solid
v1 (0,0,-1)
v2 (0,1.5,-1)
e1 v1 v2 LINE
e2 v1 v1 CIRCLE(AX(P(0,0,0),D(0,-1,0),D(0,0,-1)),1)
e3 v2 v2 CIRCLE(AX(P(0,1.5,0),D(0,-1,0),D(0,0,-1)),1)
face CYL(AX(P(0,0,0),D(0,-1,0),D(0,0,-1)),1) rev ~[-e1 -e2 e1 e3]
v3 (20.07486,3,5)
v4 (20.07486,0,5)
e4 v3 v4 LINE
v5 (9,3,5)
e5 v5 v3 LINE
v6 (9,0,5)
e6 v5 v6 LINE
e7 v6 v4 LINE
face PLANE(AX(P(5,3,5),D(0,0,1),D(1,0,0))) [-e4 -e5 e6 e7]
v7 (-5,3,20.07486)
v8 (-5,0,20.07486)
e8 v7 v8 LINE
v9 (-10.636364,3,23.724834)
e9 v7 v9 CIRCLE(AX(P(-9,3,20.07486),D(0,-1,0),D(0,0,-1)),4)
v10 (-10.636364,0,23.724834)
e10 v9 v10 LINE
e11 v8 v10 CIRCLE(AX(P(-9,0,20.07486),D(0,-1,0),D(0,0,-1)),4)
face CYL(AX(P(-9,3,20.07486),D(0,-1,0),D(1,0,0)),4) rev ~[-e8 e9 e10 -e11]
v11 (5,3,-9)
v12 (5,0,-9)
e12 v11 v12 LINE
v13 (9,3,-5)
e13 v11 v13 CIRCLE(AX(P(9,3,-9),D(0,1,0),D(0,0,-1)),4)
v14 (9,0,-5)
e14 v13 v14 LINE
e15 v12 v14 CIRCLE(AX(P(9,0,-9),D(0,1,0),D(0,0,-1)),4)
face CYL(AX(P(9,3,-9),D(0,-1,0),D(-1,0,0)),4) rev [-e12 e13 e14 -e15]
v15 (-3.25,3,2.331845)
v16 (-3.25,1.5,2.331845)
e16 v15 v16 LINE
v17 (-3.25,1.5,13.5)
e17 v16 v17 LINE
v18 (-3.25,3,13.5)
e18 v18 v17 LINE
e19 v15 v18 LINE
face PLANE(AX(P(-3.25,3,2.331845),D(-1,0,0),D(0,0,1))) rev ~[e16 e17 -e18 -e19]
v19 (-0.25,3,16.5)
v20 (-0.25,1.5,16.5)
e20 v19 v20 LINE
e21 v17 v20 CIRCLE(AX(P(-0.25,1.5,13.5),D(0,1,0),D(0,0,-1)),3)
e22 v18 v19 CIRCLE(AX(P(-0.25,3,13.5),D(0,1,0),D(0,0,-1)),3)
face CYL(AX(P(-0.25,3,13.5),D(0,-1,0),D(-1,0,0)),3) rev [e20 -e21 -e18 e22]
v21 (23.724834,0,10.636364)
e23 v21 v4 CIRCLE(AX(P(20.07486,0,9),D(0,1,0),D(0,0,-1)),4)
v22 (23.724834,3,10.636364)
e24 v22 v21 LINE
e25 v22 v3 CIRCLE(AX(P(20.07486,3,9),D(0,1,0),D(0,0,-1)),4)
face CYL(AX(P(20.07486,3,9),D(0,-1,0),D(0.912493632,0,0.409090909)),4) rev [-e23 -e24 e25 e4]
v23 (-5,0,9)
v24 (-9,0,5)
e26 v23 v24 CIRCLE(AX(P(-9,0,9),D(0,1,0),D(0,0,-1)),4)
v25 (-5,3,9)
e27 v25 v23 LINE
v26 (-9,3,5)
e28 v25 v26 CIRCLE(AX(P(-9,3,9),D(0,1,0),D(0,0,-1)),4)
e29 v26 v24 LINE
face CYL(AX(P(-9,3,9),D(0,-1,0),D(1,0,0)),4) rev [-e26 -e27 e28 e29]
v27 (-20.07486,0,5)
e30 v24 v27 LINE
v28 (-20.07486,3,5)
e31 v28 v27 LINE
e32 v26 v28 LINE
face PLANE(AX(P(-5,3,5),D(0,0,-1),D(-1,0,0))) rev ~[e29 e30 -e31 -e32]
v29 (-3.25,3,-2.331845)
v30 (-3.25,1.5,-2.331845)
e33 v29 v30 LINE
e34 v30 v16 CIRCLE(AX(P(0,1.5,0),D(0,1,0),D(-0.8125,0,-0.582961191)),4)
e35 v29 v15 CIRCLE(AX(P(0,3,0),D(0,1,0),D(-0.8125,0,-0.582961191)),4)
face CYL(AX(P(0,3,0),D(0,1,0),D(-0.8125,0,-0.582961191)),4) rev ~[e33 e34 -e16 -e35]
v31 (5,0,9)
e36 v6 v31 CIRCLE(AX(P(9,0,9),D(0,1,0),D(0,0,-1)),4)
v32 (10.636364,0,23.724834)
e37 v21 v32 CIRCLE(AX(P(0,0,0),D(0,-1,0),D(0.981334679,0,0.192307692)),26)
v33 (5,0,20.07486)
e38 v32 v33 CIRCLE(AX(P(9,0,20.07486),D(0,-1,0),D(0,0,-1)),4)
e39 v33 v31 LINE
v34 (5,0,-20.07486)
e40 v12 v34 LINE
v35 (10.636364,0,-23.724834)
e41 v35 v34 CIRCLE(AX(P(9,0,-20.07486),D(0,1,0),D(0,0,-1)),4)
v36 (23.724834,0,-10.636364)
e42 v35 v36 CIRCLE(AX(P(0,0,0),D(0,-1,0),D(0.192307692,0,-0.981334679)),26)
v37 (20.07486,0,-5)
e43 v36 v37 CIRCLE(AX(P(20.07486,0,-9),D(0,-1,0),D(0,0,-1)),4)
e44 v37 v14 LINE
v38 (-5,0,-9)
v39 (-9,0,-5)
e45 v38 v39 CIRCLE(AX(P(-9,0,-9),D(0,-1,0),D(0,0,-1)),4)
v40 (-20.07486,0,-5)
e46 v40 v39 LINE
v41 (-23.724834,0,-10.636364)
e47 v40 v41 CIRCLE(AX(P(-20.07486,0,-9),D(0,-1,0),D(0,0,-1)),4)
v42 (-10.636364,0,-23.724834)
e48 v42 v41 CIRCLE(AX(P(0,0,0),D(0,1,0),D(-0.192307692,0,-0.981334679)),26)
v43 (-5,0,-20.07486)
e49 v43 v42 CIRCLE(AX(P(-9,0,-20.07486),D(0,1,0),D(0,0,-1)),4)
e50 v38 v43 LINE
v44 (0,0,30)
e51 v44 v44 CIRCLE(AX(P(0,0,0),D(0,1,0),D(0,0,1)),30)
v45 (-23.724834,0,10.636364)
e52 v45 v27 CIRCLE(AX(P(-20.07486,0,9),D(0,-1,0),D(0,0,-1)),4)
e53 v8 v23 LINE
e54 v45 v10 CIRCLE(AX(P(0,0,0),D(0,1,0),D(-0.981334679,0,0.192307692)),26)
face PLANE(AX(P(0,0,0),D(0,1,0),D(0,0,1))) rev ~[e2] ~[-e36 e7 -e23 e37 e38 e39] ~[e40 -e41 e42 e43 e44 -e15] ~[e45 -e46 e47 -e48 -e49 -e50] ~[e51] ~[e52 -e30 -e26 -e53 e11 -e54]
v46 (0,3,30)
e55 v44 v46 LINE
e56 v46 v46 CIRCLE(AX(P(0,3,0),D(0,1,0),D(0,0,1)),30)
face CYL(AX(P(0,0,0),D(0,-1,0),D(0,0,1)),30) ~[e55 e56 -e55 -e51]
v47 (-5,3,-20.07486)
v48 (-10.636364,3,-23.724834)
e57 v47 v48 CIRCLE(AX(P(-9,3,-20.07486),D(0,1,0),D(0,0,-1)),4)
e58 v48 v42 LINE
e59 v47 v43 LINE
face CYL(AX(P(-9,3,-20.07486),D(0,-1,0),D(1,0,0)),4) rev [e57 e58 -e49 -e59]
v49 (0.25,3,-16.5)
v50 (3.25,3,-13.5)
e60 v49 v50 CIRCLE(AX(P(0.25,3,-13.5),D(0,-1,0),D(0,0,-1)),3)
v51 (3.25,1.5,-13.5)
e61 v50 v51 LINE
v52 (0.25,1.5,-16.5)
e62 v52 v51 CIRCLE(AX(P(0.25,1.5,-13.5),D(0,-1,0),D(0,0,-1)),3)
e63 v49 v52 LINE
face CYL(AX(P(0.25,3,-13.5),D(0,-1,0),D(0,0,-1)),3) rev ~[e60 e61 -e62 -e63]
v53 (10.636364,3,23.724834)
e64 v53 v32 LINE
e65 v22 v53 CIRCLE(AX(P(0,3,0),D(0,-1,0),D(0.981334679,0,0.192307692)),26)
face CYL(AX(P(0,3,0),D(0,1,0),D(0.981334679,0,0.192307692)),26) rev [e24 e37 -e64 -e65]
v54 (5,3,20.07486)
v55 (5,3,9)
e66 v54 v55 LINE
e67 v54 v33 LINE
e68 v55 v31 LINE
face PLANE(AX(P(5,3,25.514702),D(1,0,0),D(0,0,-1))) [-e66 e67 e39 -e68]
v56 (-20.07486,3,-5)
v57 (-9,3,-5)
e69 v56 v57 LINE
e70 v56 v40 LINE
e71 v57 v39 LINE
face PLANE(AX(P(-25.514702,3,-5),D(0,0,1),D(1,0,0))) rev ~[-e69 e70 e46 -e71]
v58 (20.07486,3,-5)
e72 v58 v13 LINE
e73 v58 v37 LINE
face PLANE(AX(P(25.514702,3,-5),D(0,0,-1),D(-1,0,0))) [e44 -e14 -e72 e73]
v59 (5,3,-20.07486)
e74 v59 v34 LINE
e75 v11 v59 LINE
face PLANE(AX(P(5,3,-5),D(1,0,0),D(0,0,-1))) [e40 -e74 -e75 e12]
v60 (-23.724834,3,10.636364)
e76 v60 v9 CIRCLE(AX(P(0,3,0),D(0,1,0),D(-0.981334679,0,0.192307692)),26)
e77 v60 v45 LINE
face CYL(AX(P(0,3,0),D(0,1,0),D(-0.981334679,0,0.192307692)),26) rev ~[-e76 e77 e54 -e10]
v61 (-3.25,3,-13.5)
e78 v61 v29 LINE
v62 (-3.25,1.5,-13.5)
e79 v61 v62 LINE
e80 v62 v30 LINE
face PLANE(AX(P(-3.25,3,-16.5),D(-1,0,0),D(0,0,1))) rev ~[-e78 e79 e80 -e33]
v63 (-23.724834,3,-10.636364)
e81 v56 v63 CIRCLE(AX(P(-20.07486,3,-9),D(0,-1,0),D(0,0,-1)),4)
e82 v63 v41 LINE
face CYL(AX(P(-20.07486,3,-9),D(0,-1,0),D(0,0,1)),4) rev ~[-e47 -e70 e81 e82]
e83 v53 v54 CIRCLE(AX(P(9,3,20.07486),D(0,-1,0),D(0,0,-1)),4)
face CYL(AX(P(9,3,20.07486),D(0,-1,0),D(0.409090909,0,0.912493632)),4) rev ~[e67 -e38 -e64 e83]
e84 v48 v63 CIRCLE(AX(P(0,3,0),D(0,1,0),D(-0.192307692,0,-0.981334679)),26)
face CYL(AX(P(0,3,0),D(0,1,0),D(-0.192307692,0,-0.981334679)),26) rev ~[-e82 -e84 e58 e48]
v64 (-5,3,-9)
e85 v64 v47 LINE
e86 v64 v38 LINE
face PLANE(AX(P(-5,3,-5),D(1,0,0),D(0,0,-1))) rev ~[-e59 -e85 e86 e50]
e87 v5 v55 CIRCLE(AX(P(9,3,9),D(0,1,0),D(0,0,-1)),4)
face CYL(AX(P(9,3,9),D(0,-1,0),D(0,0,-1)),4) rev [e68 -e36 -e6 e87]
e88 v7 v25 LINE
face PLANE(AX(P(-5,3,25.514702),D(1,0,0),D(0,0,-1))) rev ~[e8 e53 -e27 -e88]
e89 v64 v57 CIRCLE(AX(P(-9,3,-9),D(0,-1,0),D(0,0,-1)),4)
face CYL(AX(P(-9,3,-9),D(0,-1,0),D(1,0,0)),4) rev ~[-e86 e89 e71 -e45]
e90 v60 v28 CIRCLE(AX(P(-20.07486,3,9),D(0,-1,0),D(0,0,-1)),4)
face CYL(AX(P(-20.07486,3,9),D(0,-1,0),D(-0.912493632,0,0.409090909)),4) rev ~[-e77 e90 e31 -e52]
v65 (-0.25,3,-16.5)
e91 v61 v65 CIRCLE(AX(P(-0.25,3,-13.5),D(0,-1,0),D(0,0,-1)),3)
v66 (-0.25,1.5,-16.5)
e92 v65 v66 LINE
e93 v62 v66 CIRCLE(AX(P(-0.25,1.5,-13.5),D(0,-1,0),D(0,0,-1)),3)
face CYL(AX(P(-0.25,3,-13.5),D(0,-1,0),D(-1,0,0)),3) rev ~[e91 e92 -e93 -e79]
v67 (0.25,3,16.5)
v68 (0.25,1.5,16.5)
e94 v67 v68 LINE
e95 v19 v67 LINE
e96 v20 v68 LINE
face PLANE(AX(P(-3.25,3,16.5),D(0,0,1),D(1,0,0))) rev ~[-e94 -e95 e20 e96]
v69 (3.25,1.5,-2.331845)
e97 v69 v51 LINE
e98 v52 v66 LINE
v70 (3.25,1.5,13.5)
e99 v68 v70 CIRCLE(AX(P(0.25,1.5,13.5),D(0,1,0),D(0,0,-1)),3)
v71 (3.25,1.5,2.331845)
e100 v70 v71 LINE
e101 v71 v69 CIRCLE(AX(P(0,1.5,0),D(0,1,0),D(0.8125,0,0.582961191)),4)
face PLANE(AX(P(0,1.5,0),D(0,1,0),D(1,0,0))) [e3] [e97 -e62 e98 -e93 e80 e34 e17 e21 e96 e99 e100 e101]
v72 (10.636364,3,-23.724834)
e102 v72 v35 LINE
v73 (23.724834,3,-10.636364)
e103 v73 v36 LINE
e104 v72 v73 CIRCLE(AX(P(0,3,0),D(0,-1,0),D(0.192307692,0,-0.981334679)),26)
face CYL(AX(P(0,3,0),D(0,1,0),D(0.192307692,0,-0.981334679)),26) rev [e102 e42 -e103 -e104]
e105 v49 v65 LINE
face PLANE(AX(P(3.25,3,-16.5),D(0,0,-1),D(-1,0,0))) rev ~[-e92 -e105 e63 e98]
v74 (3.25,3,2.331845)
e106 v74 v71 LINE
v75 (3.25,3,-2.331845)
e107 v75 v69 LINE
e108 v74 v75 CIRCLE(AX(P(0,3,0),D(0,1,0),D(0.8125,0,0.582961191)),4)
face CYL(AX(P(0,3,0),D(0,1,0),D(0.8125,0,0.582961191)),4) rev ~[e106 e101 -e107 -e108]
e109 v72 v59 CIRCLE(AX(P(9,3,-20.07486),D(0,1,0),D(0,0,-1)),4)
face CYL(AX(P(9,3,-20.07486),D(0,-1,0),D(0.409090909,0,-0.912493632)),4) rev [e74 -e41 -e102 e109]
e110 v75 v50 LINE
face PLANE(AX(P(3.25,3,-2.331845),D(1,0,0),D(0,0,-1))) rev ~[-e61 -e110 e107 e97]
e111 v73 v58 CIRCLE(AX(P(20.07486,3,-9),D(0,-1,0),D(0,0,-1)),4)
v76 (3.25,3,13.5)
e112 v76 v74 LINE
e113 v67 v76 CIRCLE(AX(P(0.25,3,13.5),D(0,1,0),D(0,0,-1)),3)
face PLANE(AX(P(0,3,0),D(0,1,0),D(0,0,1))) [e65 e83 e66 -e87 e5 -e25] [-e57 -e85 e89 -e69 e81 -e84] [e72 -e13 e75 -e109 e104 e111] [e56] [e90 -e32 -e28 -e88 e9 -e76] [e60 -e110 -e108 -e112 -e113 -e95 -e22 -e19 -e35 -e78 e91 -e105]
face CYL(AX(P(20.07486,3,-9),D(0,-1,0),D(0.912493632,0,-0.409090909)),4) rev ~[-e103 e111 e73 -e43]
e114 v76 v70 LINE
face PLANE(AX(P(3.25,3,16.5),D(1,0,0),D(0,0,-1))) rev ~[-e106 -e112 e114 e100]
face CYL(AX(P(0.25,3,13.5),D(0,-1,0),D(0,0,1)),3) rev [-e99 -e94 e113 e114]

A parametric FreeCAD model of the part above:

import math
import FreeCAD as App
import Part
import Sketcher


def edges_at(feature, points):
    """Names of the edges that pass closest to the given points."""
    edges = feature.Shape.Edges
    near = lambda p: min(range(len(edges)), key=lambda i: edges[i].distToShape(Part.Vertex(*p))[0])
    return sorted({f"Edge{near(p) + 1}" for p in points})

doc = App.newDocument("Part")
params = doc.addObject("Spreadsheet::Sheet", "Params")
for row, (alias, value) in enumerate([
    ("sketch1_diameter", "60 mm"),
    ("pad1_length", "3 mm"),
    ("sketch2_radius", "4 mm"),
    ("sketch2_width", "6.5 mm"),
    ("pocket1_length", "1.5 mm"),
    ("sketch3_radius", "26 mm"),
    ("pocket2_length", "3 mm"),
    ("sketch4_diameter", "2 mm"),
    ("pocket3_length", "3 mm"),
    ("fillet_radius", "4 mm"),
    ("fillet2_radius", "3 mm"),
], start=1):
    params.set(f"A{row}", alias)
    params.set(f"B{row}", "=" + value)
    params.setAlias(f"B{row}", alias)

body = doc.addObject("PartDesign::Body", "Body")

sketch1 = body.newObject("Sketcher::SketchObject", "Sketch")
sketch1.AttachmentSupport = (doc.getObject("XZ_Plane"), [""])
sketch1.MapMode = "FlatFace"
sketch1.addGeometry(Part.Circle(App.Vector(0, 0, 0), App.Vector(0, 0, 1), 30), False)
sketch1.addConstraint(Sketcher.Constraint("Coincident", 0, 3, -1, 1))
sketch1.addConstraint(Sketcher.Constraint("Diameter", 0, 60.0))
sketch1.setExpression("Constraints[1]", "Params.sketch1_diameter")
pad1 = body.newObject("PartDesign::Pad", "Pad")
pad1.Profile = sketch1
pad1.setExpression("Length", "Params.pad1_length")
pad1.Reversed = True

sketch2 = body.newObject("Sketcher::SketchObject", "Sketch001")
sketch2.AttachmentSupport = (doc.getObject("XZ_Plane"), [""])
sketch2.MapMode = "FlatFace"
sketch2.AttachmentOffset = App.Placement(App.Vector(0, 0, -3), App.Rotation())
sketch2.addGeometry(Part.LineSegment(App.Vector(-3.2, -16.5, 0), App.Vector(-3.2, -2.3, 0)), False)
sketch2.addGeometry(Part.ArcOfCircle(Part.Circle(App.Vector(0, 0, 0), App.Vector(0, 0, 1), 4), math.radians(144), math.radians(216)), False)
sketch2.addGeometry(Part.LineSegment(App.Vector(-3.2, 2.3, 0), App.Vector(-3.2, 16.5, 0)), False)
sketch2.addGeometry(Part.LineSegment(App.Vector(-3.2, 16.5, 0), App.Vector(3.2, 16.5, 0)), False)
sketch2.addGeometry(Part.LineSegment(App.Vector(3.2, 16.5, 0), App.Vector(3.2, 2.3, 0)), False)
sketch2.addGeometry(Part.ArcOfCircle(Part.Circle(App.Vector(0, 0, 0), App.Vector(0, 0, 1), 4), math.radians(-36), math.radians(36)), False)
sketch2.addGeometry(Part.LineSegment(App.Vector(3.2, -2.3, 0), App.Vector(3.2, -16.5, 0)), False)
sketch2.addGeometry(Part.LineSegment(App.Vector(3.2, -16.5, 0), App.Vector(-3.2, -16.5, 0)), False)
sketch2.addConstraint(Sketcher.Constraint("Coincident", 0, 2, 1, 2))
sketch2.addConstraint(Sketcher.Constraint("Coincident", 1, 1, 2, 1))
sketch2.addConstraint(Sketcher.Constraint("Coincident", 2, 2, 3, 1))
sketch2.addConstraint(Sketcher.Constraint("Coincident", 3, 2, 4, 1))
sketch2.addConstraint(Sketcher.Constraint("Coincident", 4, 2, 5, 2))
sketch2.addConstraint(Sketcher.Constraint("Coincident", 5, 1, 6, 1))
sketch2.addConstraint(Sketcher.Constraint("Coincident", 6, 2, 7, 1))
sketch2.addConstraint(Sketcher.Constraint("Coincident", 7, 2, 0, 1))
sketch2.addConstraint(Sketcher.Constraint("Vertical", 0))
sketch2.addConstraint(Sketcher.Constraint("Vertical", 2))
sketch2.addConstraint(Sketcher.Constraint("Horizontal", 3))
sketch2.addConstraint(Sketcher.Constraint("Vertical", 4))
sketch2.addConstraint(Sketcher.Constraint("Vertical", 6))
sketch2.addConstraint(Sketcher.Constraint("Horizontal", 7))
sketch2.addConstraint(Sketcher.Constraint("Coincident", 1, 3, -1, 1))
sketch2.addConstraint(Sketcher.Constraint("Coincident", 5, 3, -1, 1))
sketch2.addConstraint(Sketcher.Constraint("Equal", 1, 5))
sketch2.addConstraint(Sketcher.Constraint("Symmetric", 2, 2, 6, 2, -1, 1))
sketch2.addConstraint(Sketcher.Constraint("Horizontal", 1, 1, 4, 2))
sketch2.addConstraint(Sketcher.Constraint("Horizontal", 0, 2, 5, 1))
sketch2.addConstraint(Sketcher.Constraint("Radius", 1, 4.0))
sketch2.addConstraint(Sketcher.Constraint("DistanceX", 3, 1, 3, 2, 6.5))
sketch2.addConstraint(Sketcher.Constraint("DistanceY", -1, 1, 2, 2, 16.5))
sketch2.setExpression("Constraints[20]", "Params.sketch2_radius")
sketch2.setExpression("Constraints[21]", "Params.sketch2_width")
pocket1 = body.newObject("PartDesign::Pocket", "Pocket")
pocket1.Profile = sketch2
pocket1.setExpression("Length", "Params.pocket1_length")
pocket1.Reversed = True

sketch3 = body.newObject("Sketcher::SketchObject", "Sketch002")
sketch3.AttachmentSupport = (doc.getObject("XZ_Plane"), [""])
sketch3.MapMode = "FlatFace"
sketch3.AttachmentOffset = App.Placement(App.Vector(0, 0, -3), App.Rotation())
sketch3.addGeometry(Part.LineSegment(App.Vector(-5, 26, 0), App.Vector(-5, 5, 0)), False)
sketch3.addGeometry(Part.LineSegment(App.Vector(-5, 5, 0), App.Vector(-26, 5, 0)), False)
sketch3.addGeometry(Part.ArcOfCircle(Part.Circle(App.Vector(0, 0, 0), App.Vector(0, 0, 1), 26), math.radians(101), math.radians(169)), False)
sketch3.addGeometry(Part.LineSegment(App.Vector(5, 5, 0), App.Vector(5, 26, 0)), False)
sketch3.addGeometry(Part.ArcOfCircle(Part.Circle(App.Vector(0, 0, 0), App.Vector(0, 0, 1), 26), math.radians(11), math.radians(79)), False)
sketch3.addGeometry(Part.LineSegment(App.Vector(26, 5, 0), App.Vector(5, 5, 0)), False)
sketch3.addGeometry(Part.LineSegment(App.Vector(5, -5, 0), App.Vector(26, -5, 0)), False)
sketch3.addGeometry(Part.ArcOfCircle(Part.Circle(App.Vector(0, 0, 0), App.Vector(0, 0, 1), 26), math.radians(-79), math.radians(-11)), False)
sketch3.addGeometry(Part.LineSegment(App.Vector(5, -26, 0), App.Vector(5, -5, 0)), False)
sketch3.addGeometry(Part.LineSegment(App.Vector(-5, -5, 0), App.Vector(-5, -26, 0)), False)
sketch3.addGeometry(Part.ArcOfCircle(Part.Circle(App.Vector(0, 0, 0), App.Vector(0, 0, 1), 26), math.radians(-169), math.radians(-101)), False)
sketch3.addGeometry(Part.LineSegment(App.Vector(-26, -5, 0), App.Vector(-5, -5, 0)), False)
sketch3.addConstraint(Sketcher.Constraint("Coincident", 0, 2, 1, 1))
sketch3.addConstraint(Sketcher.Constraint("Coincident", 1, 2, 2, 2))
sketch3.addConstraint(Sketcher.Constraint("Coincident", 2, 1, 0, 1))
sketch3.addConstraint(Sketcher.Constraint("Coincident", 3, 2, 4, 2))
sketch3.addConstraint(Sketcher.Constraint("Coincident", 4, 1, 5, 1))
sketch3.addConstraint(Sketcher.Constraint("Coincident", 5, 2, 3, 1))
sketch3.addConstraint(Sketcher.Constraint("Coincident", 6, 2, 7, 2))
sketch3.addConstraint(Sketcher.Constraint("Coincident", 7, 1, 8, 1))
sketch3.addConstraint(Sketcher.Constraint("Coincident", 8, 2, 6, 1))
sketch3.addConstraint(Sketcher.Constraint("Coincident", 9, 2, 10, 2))
sketch3.addConstraint(Sketcher.Constraint("Coincident", 10, 1, 11, 1))
sketch3.addConstraint(Sketcher.Constraint("Coincident", 11, 2, 9, 1))
sketch3.addConstraint(Sketcher.Constraint("Vertical", 0))
sketch3.addConstraint(Sketcher.Constraint("Horizontal", 1))
sketch3.addConstraint(Sketcher.Constraint("Vertical", 3))
sketch3.addConstraint(Sketcher.Constraint("Horizontal", 5))
sketch3.addConstraint(Sketcher.Constraint("Horizontal", 6))
sketch3.addConstraint(Sketcher.Constraint("Vertical", 8))
sketch3.addConstraint(Sketcher.Constraint("Vertical", 9))
sketch3.addConstraint(Sketcher.Constraint("Horizontal", 11))
sketch3.addConstraint(Sketcher.Constraint("Coincident", 2, 3, -1, 1))
sketch3.addConstraint(Sketcher.Constraint("Coincident", 4, 3, -1, 1))
sketch3.addConstraint(Sketcher.Constraint("Coincident", 7, 3, -1, 1))
sketch3.addConstraint(Sketcher.Constraint("Coincident", 10, 3, -1, 1))
sketch3.addConstraint(Sketcher.Constraint("Equal", 2, 4))
sketch3.addConstraint(Sketcher.Constraint("Equal", 4, 7))
sketch3.addConstraint(Sketcher.Constraint("Equal", 7, 10))
sketch3.addConstraint(Sketcher.Constraint("Symmetric", 0, 2, 8, 2, -1, 1))
sketch3.addConstraint(Sketcher.Constraint("Symmetric", 5, 2, 11, 2, -1, 1))
sketch3.addConstraint(Sketcher.Constraint("Symmetric", 0, 2, 5, 2, -2))
sketch3.addConstraint(Sketcher.Constraint("Equal", 11, 0))
sketch3.addConstraint(Sketcher.Constraint("Radius", 2, 26.0))
sketch3.addConstraint(Sketcher.Constraint("DistanceX", 0, 2, -1, 1, 5.0))
sketch3.setExpression("Constraints[31]", "Params.sketch3_radius")
pocket2 = body.newObject("PartDesign::Pocket", "Pocket001")
pocket2.Profile = sketch3
pocket2.setExpression("Length", "Params.pocket2_length")
pocket2.Reversed = True

sketch4 = body.newObject("Sketcher::SketchObject", "Sketch003")
sketch4.AttachmentSupport = (doc.getObject("XZ_Plane"), [""])
sketch4.MapMode = "FlatFace"
sketch4.addGeometry(Part.Circle(App.Vector(0, 0, 0), App.Vector(0, 0, 1), 1), False)
sketch4.addConstraint(Sketcher.Constraint("Coincident", 0, 3, -1, 1))
sketch4.addConstraint(Sketcher.Constraint("Diameter", 0, 2.0))
sketch4.setExpression("Constraints[1]", "Params.sketch4_diameter")
pocket3 = body.newObject("PartDesign::Pocket", "Pocket002")
pocket3.Profile = sketch4
pocket3.setExpression("Length", "Params.pocket3_length")
doc.recompute()

fillet = body.newObject("PartDesign::Fillet", "Fillet")
fillet.Base = (pocket3, edges_at(pocket3, [
    (-25.515, 1.5, -5),
    (-5, 1.5, -25.515),
    (-5, 1.5, -5),
    (25.515, 1.5, 5),
    (5, 1.5, 25.515),
    (5, 1.5, 5),
    (5, 1.5, -25.515),
    (25.515, 1.5, -5),
    (5, 1.5, -5),
    (-5, 1.5, 25.515),
    (-25.515, 1.5, 5),
    (-5, 1.5, 5),
]))
fillet.setExpression("Radius", "Params.fillet_radius")
doc.recompute()

fillet2 = body.newObject("PartDesign::Fillet", "Fillet001")
fillet2.Base = (fillet, edges_at(fillet, [
    (3.25, 2.25, 16.5),
    (-3.25, 2.25, 16.5),
    (-3.25, 2.25, -16.5),
    (3.25, 2.25, -16.5),
]))
fillet2.setExpression("Radius", "Params.fillet2_radius")

doc.recompute()
